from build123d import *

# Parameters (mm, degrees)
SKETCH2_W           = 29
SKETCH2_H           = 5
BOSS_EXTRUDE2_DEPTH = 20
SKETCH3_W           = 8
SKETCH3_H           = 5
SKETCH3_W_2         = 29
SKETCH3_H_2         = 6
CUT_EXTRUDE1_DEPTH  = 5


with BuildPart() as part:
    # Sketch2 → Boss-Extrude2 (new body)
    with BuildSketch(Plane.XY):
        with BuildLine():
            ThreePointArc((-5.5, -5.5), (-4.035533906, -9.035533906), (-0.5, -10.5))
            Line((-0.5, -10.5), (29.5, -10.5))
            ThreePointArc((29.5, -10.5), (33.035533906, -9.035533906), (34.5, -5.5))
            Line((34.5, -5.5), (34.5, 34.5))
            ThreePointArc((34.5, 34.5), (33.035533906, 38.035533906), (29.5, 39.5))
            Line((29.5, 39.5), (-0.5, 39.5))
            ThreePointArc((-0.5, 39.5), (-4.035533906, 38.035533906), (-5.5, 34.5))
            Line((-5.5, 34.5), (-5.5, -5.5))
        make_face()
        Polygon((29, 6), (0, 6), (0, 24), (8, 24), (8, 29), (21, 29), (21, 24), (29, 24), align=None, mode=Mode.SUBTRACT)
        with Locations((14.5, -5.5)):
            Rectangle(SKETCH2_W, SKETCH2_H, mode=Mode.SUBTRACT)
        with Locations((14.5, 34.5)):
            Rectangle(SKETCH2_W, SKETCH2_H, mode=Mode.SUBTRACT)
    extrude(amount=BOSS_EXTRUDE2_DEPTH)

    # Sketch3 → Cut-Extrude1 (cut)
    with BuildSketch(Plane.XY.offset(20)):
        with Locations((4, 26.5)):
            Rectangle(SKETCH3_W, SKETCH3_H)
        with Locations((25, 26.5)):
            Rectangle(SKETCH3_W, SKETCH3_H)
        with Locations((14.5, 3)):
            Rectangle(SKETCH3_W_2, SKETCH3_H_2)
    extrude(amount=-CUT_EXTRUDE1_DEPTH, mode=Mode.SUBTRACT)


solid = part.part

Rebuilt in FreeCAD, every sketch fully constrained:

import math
import FreeCAD as App
import Part
import Sketcher
from FreeCAD import Vector
Q = App.Units.Quantity

doc = App.newDocument("Part")
body = doc.addObject("PartDesign::Body", "Body")

# Sketch on XY plane
sketch1 = body.newObject("Sketcher::SketchObject", "Sketch")
sketch1.AttachmentSupport = (doc.getObject("XY_Plane"), [""])
sketch1.MapMode = "FlatFace"
sketch1.addGeometry([
    Part.ArcOfCircle(Part.Circle(Vector(0, -6, 0), Vector(0, 0, 1), 5), math.radians(180), math.radians(270)),  # 0
    Part.LineSegment(Vector(0, -10, 0), Vector(30, -10, 0)),  # 1
    Part.ArcOfCircle(Part.Circle(Vector(30, -6, 0), Vector(0, 0, 1), 5), math.radians(-90), math.radians(0)),  # 2
    Part.LineSegment(Vector(34, -6, 0), Vector(34, 34, 0)),  # 3
    Part.ArcOfCircle(Part.Circle(Vector(30, 34, 0), Vector(0, 0, 1), 5), math.radians(0), math.radians(90)),  # 4
    Part.LineSegment(Vector(30, 40, 0), Vector(0, 40, 0)),  # 5
    Part.ArcOfCircle(Part.Circle(Vector(0, 34, 0), Vector(0, 0, 1), 5), math.radians(90), math.radians(180)),  # 6
    Part.LineSegment(Vector(-6, 34, 0), Vector(-6, -6, 0)),  # 7
    Part.LineSegment(Vector(29, -8, 0), Vector(0, -8, 0)),  # 8
    Part.LineSegment(Vector(0, -8, 0), Vector(0, -3, 0)),  # 9
    Part.LineSegment(Vector(0, -3, 0), Vector(29, -3, 0)),  # 10
    Part.LineSegment(Vector(29, -3, 0), Vector(29, -8, 0)),  # 11
    Part.LineSegment(Vector(29, 24, 0), Vector(29, 6, 0)),  # 12
    Part.LineSegment(Vector(29, 6, 0), Vector(0, 6, 0)),  # 13
    Part.LineSegment(Vector(0, 6, 0), Vector(0, 24, 0)),  # 14
    Part.LineSegment(Vector(0, 24, 0), Vector(8, 24, 0)),  # 15
    Part.LineSegment(Vector(8, 24, 0), Vector(8, 29, 0)),  # 16
    Part.LineSegment(Vector(8, 29, 0), Vector(21, 29, 0)),  # 17
    Part.LineSegment(Vector(21, 29, 0), Vector(21, 24, 0)),  # 18
    Part.LineSegment(Vector(21, 24, 0), Vector(29, 24, 0)),  # 19
    Part.LineSegment(Vector(29, 32, 0), Vector(0, 32, 0)),  # 20
    Part.LineSegment(Vector(0, 32, 0), Vector(0, 37, 0)),  # 21
    Part.LineSegment(Vector(0, 37, 0), Vector(29, 37, 0)),  # 22
    Part.LineSegment(Vector(29, 37, 0), Vector(29, 32, 0)),  # 23
], False)
sketch1.addConstraint([
    Sketcher.Constraint("Tangent", 0, 2, 1, 1),
    Sketcher.Constraint("Tangent", 1, 2, 2, 1),
    Sketcher.Constraint("Tangent", 2, 2, 3, 1),
    Sketcher.Constraint("Tangent", 3, 2, 4, 1),
    Sketcher.Constraint("Tangent", 4, 2, 5, 1),
    Sketcher.Constraint("Tangent", 5, 2, 6, 1),
    Sketcher.Constraint("Tangent", 6, 2, 7, 1),
    Sketcher.Constraint("Tangent", 7, 2, 0, 1),
    Sketcher.Constraint("Coincident", 8, 2, 9, 1),
    Sketcher.Constraint("Coincident", 9, 2, 10, 1),
    Sketcher.Constraint("Coincident", 10, 2, 11, 1),
    Sketcher.Constraint("Coincident", 11, 2, 8, 1),
    Sketcher.Constraint("Coincident", 12, 2, 13, 1),
    Sketcher.Constraint("Coincident", 13, 2, 14, 1),
    Sketcher.Constraint("Coincident", 14, 2, 15, 1),
    Sketcher.Constraint("Coincident", 15, 2, 16, 1),
    Sketcher.Constraint("Coincident", 16, 2, 17, 1),
    Sketcher.Constraint("Coincident", 17, 2, 18, 1),
    Sketcher.Constraint("Coincident", 18, 2, 19, 1),
    Sketcher.Constraint("Coincident", 19, 2, 12, 1),
    Sketcher.Constraint("Coincident", 20, 2, 21, 1),
    Sketcher.Constraint("Coincident", 21, 2, 22, 1),
    Sketcher.Constraint("Coincident", 22, 2, 23, 1),
    Sketcher.Constraint("Coincident", 23, 2, 20, 1),
    Sketcher.Constraint("Horizontal", 1),
    Sketcher.Constraint("Vertical", 3),
    Sketcher.Constraint("Horizontal", 5),
    Sketcher.Constraint("Vertical", 7),
    Sketcher.Constraint("Horizontal", 8),
    Sketcher.Constraint("Vertical", 9),
    Sketcher.Constraint("Horizontal", 10),
    Sketcher.Constraint("Vertical", 11),
    Sketcher.Constraint("Vertical", 12),
    Sketcher.Constraint("Horizontal", 13),
    Sketcher.Constraint("Vertical", 14),
    Sketcher.Constraint("Horizontal", 15),
    Sketcher.Constraint("Vertical", 16),
    Sketcher.Constraint("Horizontal", 17),
    Sketcher.Constraint("Vertical", 18),
    Sketcher.Constraint("Horizontal", 19),
    Sketcher.Constraint("Horizontal", 20),
    Sketcher.Constraint("Vertical", 21),
    Sketcher.Constraint("Horizontal", 22),
    Sketcher.Constraint("Vertical", 23),
    Sketcher.Constraint("Equal", 0, 2),
    Sketcher.Constraint("Equal", 2, 4),
    Sketcher.Constraint("Equal", 4, 6),
    Sketcher.Constraint("PointOnObject", 8, 2, -2),
    Sketcher.Constraint("PointOnObject", 13, 2, -2),
    Sketcher.Constraint("PointOnObject", 20, 2, -2),
    Sketcher.Constraint("Horizontal", 15, 2, 18, 2),
    Sketcher.Constraint("Vertical", 11, 2, 12, 2),
    Sketcher.Constraint("Vertical", 19, 2, 22, 2),
    Sketcher.Constraint("Equal", 15, 19),
    Sketcher.Constraint("Equal", 11, 16),
    Sketcher.Constraint("Equal", 18, 21),
    Sketcher.Constraint("Radius", 0, Q("5 mm")),
    Sketcher.Constraint("DistanceX", 1, 1, 1, 2, Q("30 mm")),
    Sketcher.Constraint("DistanceX", 8, 2, 8, 1, Q("29 mm")),
    Sketcher.Constraint("DistanceX", 15, 1, 15, 2, Q("8 mm")),
    Sketcher.Constraint("DistanceY", 3, 1, 3, 2, Q("40 mm")),
    Sketcher.Constraint("DistanceY", 9, 1, 9, 2, Q("5 mm")),
    Sketcher.Constraint("DistanceY", 12, 2, 12, 1, Q("18 mm")),
    Sketcher.Constraint("DistanceY", 8, 2, -1, 1, Q("8 mm")),
    Sketcher.Constraint("DistanceY", -1, 1, 12, 2, Q("6 mm")),
    Sketcher.Constraint("DistanceY", -1, 1, 20, 2, Q("32 mm")),
    Sketcher.Constraint("DistanceX", 0, 3, -1, 1, Q("0.5 mm")),
    Sketcher.Constraint("DistanceY", 0, 3, -1, 1, Q("5.5 mm")),
])
pad1 = body.newObject("PartDesign::Pad", "Pad")
pad1.Profile = sketch1
pad1.Length = 20

# Sketch on XY plane
sketch2 = body.newObject("Sketcher::SketchObject", "Sketch001")
sketch2.AttachmentSupport = (doc.getObject("XY_Plane"), [""])
sketch2.MapMode = "FlatFace"
sketch2.AttachmentOffset = App.Placement(Vector(0, 0, 20), App.Rotation())
sketch2.addGeometry([
    Part.LineSegment(Vector(0, 29, 0), Vector(0, 24, 0)),  # 0
    Part.LineSegment(Vector(0, 24, 0), Vector(8, 24, 0)),  # 1
    Part.LineSegment(Vector(8, 24, 0), Vector(8, 29, 0)),  # 2
    Part.LineSegment(Vector(8, 29, 0), Vector(0, 29, 0)),  # 3
    Part.LineSegment(Vector(21, 29, 0), Vector(21, 24, 0)),  # 4
    Part.LineSegment(Vector(21, 24, 0), Vector(29, 24, 0)),  # 5
    Part.LineSegment(Vector(29, 24, 0), Vector(29, 29, 0)),  # 6
    Part.LineSegment(Vector(29, 29, 0), Vector(21, 29, 0)),  # 7
    Part.LineSegment(Vector(0, 6, 0), Vector(0, 0, 0)),  # 8
    Part.LineSegment(Vector(0, 0, 0), Vector(29, 0, 0)),  # 9
    Part.LineSegment(Vector(29, 0, 0), Vector(29, 6, 0)),  # 10
    Part.LineSegment(Vector(29, 6, 0), Vector(0, 6, 0)),  # 11
], False)
sketch2.addConstraint([
    Sketcher.Constraint("Coincident", 0, 2, 1, 1),
    Sketcher.Constraint("Coincident", 1, 2, 2, 1),
    Sketcher.Constraint("Coincident", 2, 2, 3, 1),
    Sketcher.Constraint("Coincident", 3, 2, 0, 1),
    Sketcher.Constraint("Coincident", 4, 2, 5, 1),
    Sketcher.Constraint("Coincident", 5, 2, 6, 1),
    Sketcher.Constraint("Coincident", 6, 2, 7, 1),
    Sketcher.Constraint("Coincident", 7, 2, 4, 1),
    Sketcher.Constraint("Coincident", 8, 2, 9, 1),
    Sketcher.Constraint("Coincident", 9, 2, 10, 1),
    Sketcher.Constraint("Coincident", 10, 2, 11, 1),
    Sketcher.Constraint("Coincident", 11, 2, 8, 1),
    Sketcher.Constraint("Vertical", 0),
    Sketcher.Constraint("Horizontal", 1),
    Sketcher.Constraint("Vertical", 2),
    Sketcher.Constraint("Horizontal", 3),
    Sketcher.Constraint("Vertical", 4),
    Sketcher.Constraint("Horizontal", 5),
    Sketcher.Constraint("Vertical", 6),
    Sketcher.Constraint("Horizontal", 7),
    Sketcher.Constraint("Vertical", 8),
    Sketcher.Constraint("Horizontal", 9),
    Sketcher.Constraint("Vertical", 10),
    Sketcher.Constraint("Horizontal", 11),
    Sketcher.Constraint("Coincident", 8, 2, -1, 1),
    Sketcher.Constraint("PointOnObject", 0, 2, -2),
    Sketcher.Constraint("Horizontal", 1, 2, 4, 2),
    Sketcher.Constraint("Horizontal", 3, 2, 6, 2),
    Sketcher.Constraint("Vertical", 6, 2, 9, 2),
    Sketcher.Constraint("Equal", 3, 5),
    Sketcher.Constraint("DistanceX", 1, 1, 1, 2, Q("8 mm")),
    Sketcher.Constraint("DistanceX", 9, 1, 9, 2, Q("29 mm")),
    Sketcher.Constraint("DistanceY", 0, 2, 0, 1, Q("5 mm")),
    Sketcher.Constraint("DistanceY", 8, 2, 8, 1, Q("6 mm")),
    Sketcher.Constraint("DistanceY", -1, 1, 0, 2, Q("24 mm")),
])
pocket1 = body.newObject("PartDesign::Pocket", "Pocket")
pocket1.Profile = sketch2
pocket1.Length = 5

doc.recompute()
